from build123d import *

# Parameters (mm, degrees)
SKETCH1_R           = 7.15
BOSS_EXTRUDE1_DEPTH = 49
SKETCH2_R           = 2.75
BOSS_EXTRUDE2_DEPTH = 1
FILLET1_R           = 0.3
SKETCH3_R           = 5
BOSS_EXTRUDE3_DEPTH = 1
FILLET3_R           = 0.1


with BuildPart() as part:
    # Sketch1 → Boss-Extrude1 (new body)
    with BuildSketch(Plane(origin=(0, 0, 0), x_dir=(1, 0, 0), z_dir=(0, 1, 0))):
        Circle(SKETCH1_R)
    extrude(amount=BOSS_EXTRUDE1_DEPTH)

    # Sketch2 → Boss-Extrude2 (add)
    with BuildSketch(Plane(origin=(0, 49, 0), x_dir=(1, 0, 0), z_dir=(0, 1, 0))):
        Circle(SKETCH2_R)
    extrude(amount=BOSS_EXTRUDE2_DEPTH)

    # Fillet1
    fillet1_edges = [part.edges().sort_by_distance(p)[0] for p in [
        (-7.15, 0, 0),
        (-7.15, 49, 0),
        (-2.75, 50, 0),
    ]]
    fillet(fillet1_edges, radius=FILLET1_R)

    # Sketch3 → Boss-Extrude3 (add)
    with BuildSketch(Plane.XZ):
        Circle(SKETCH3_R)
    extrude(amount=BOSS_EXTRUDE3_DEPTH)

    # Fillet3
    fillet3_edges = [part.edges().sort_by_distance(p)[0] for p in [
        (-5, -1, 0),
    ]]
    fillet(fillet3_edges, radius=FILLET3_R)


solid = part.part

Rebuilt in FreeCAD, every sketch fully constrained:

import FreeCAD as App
import Part
import Sketcher
from FreeCAD import Vector
Q = App.Units.Quantity


def edges_at(feature, points):
    """Names of the edges that pass closest to the given points."""
    edges = feature.Shape.Edges
    near = lambda p: min(range(len(edges)), key=lambda i: edges[i].distToShape(Part.Vertex(*p))[0])
    return sorted({f"Edge{near(p) + 1}" for p in points})

doc = App.newDocument("Part")
body = doc.addObject("PartDesign::Body", "Body")

# Sketch on XZ plane
sketch1 = body.newObject("Sketcher::SketchObject", "Sketch")
sketch1.AttachmentSupport = (doc.getObject("XZ_Plane"), [""])
sketch1.MapMode = "FlatFace"
sketch1.addGeometry(Part.Circle(Vector(0, 0, 0), Vector(0, 0, 1), 7), False)
sketch1.addConstraint([
    Sketcher.Constraint("Coincident", 0, 3, -1, 1),
    Sketcher.Constraint("Diameter", 0, Q("14.3 mm")),
])
pad1 = body.newObject("PartDesign::Pad", "Pad")
pad1.Profile = sketch1
pad1.Length = 49
pad1.Reversed = True

# Sketch on XZ plane
sketch2 = body.newObject("Sketcher::SketchObject", "Sketch001")
sketch2.AttachmentSupport = (doc.getObject("XZ_Plane"), [""])
sketch2.MapMode = "FlatFace"
sketch2.AttachmentOffset = App.Placement(Vector(0, 0, -49), App.Rotation())
sketch2.addGeometry(Part.Circle(Vector(0, 0, 0), Vector(0, 0, 1), 2.8), False)
sketch2.addConstraint([
    Sketcher.Constraint("Coincident", 0, 3, -1, 1),
    Sketcher.Constraint("Diameter", 0, Q("5.5 mm")),
])
pad2 = body.newObject("PartDesign::Pad", "Pad001")
pad2.Profile = sketch2
pad2.Length = 1
pad2.Reversed = True
doc.recompute()

fillet = body.newObject("PartDesign::Fillet", "Fillet")
fillet.Base = (pad2, edges_at(pad2, [(-7.15, 0, 0), (-7.15, 49, 0), (-2.75, 50, 0)]))
fillet.Radius = 0.3

# Sketch on XZ plane
sketch3 = body.newObject("Sketcher::SketchObject", "Sketch002")
sketch3.AttachmentSupport = (doc.getObject("XZ_Plane"), [""])
sketch3.MapMode = "FlatFace"
sketch3.addGeometry(Part.Circle(Vector(0, 0, 0), Vector(0, 0, 1), 5), False)
sketch3.addConstraint([
    Sketcher.Constraint("Coincident", 0, 3, -1, 1),
    Sketcher.Constraint("Diameter", 0, Q("10 mm")),
])
pad3 = body.newObject("PartDesign::Pad", "Pad002")
pad3.Profile = sketch3
pad3.Length = 1
doc.recompute()

fillet2 = body.newObject("PartDesign::Fillet", "Fillet001")
fillet2.Base = (pad3, edges_at(pad3, [(-5, -1, 0)]))
fillet2.Radius = 0.1

doc.recompute()
